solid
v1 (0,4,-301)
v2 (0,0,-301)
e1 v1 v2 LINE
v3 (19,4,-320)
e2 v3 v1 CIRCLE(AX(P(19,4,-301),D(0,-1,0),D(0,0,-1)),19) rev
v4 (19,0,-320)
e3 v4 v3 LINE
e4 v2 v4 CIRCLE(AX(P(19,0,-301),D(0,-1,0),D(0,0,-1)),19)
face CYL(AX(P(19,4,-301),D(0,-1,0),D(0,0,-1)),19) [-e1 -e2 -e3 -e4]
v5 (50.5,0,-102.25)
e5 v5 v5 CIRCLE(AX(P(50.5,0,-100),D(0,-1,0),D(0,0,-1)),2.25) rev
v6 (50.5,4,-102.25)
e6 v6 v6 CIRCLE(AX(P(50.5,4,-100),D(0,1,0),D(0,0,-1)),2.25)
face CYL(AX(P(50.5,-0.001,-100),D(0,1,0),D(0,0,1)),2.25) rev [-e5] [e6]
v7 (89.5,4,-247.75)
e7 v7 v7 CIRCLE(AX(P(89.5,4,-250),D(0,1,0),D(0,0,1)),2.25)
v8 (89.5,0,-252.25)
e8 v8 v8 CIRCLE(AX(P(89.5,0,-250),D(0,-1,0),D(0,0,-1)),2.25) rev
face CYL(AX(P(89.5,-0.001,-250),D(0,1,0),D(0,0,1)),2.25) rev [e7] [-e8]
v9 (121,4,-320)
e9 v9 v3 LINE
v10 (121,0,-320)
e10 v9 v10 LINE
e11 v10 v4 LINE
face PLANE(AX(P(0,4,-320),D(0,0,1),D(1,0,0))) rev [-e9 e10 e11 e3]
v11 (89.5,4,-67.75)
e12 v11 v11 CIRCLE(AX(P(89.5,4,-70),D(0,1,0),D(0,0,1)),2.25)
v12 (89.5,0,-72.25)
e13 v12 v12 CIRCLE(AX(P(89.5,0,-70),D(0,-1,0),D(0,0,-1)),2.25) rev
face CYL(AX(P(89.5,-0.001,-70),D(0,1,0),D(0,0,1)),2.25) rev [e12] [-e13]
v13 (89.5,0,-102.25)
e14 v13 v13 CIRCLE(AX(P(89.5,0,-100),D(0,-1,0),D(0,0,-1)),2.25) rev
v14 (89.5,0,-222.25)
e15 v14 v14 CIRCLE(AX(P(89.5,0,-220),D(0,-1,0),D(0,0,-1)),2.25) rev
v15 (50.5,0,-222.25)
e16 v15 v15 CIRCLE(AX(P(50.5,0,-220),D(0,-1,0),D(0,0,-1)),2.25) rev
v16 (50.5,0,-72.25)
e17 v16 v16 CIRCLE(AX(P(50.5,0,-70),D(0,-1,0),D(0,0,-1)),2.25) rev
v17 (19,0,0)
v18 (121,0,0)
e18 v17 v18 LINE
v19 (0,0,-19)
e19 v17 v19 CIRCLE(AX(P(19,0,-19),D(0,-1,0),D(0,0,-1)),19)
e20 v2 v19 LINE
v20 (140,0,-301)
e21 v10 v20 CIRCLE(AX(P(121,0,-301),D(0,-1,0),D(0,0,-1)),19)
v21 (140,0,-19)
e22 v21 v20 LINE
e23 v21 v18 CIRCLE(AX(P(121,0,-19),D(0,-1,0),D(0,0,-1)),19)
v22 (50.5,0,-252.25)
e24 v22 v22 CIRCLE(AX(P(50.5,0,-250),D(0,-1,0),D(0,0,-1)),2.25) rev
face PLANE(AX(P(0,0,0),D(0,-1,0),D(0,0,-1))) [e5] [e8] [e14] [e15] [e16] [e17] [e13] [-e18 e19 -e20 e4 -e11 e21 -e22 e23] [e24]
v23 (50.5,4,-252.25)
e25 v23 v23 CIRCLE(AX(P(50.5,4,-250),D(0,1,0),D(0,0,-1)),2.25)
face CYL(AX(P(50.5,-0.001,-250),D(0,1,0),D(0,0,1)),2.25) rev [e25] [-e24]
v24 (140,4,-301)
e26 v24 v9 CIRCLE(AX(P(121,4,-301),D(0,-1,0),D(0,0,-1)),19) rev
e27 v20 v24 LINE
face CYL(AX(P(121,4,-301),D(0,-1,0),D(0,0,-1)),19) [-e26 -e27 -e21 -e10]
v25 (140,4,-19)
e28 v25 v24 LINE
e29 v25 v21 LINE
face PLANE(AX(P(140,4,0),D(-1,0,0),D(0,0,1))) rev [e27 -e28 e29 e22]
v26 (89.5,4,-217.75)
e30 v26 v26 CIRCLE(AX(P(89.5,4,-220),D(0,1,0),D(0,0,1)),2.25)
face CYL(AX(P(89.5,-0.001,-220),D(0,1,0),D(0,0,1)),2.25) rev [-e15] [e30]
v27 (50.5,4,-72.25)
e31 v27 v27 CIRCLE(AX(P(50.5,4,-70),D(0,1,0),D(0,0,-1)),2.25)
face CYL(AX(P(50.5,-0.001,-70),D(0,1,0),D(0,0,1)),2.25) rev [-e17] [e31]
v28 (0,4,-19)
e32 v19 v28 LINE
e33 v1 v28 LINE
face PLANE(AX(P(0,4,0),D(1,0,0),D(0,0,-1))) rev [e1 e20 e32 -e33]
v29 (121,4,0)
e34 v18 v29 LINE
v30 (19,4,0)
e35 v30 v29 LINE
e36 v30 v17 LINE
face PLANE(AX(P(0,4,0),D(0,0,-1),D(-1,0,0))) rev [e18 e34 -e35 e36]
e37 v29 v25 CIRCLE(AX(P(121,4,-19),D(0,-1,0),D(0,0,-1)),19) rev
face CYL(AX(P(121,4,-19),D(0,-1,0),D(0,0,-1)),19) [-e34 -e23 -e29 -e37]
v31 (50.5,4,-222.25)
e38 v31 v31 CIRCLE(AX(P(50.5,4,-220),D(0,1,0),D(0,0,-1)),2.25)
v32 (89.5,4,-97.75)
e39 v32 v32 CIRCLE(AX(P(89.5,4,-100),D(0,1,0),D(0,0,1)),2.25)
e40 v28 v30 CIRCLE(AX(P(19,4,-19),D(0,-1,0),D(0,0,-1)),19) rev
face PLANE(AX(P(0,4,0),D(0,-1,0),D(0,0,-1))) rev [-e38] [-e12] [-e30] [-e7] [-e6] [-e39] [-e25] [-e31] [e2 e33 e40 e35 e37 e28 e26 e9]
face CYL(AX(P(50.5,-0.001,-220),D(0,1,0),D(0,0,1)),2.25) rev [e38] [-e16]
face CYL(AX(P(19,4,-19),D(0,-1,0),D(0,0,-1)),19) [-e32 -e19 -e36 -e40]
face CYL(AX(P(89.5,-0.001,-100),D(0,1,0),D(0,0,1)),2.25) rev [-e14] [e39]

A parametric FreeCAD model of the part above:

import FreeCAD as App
import Part
import Sketcher

V = App.Vector
Q = App.Units.Quantity


def edges_at(feature, points):
    """Names of the edges that pass closest to the given points."""
    edges = feature.Shape.Edges
    near = lambda p: min(range(len(edges)), key=lambda i: edges[i].distToShape(Part.Vertex(*p))[0])
    return sorted({f"Edge{near(p) + 1}" for p in points})

doc = App.newDocument("Part")
body = doc.addObject("PartDesign::Body", "Body")

sketch1 = body.newObject("Sketcher::SketchObject", "Sketch")
sketch1.AttachmentSupport = (doc.getObject("XZ_Plane"), [""])
sketch1.MapMode = "FlatFace"
sketch1.addGeometry([
    Part.LineSegment(V(0, -320, 0), V(0, 0, 0)),
    Part.LineSegment(V(0, 0, 0), V(140, 0, 0)),
    Part.LineSegment(V(140, 0, 0), V(140, -320, 0)),
    Part.LineSegment(V(140, -320, 0), V(0, -320, 0)),
], False)
sketch1.addConstraint([
    Sketcher.Constraint("Coincident", 0, 2, 1, 1),
    Sketcher.Constraint("Coincident", 1, 2, 2, 1),
    Sketcher.Constraint("Coincident", 2, 2, 3, 1),
    Sketcher.Constraint("Coincident", 3, 2, 0, 1),
    Sketcher.Constraint("Vertical", 0),
    Sketcher.Constraint("Horizontal", 1),
    Sketcher.Constraint("Vertical", 2),
    Sketcher.Constraint("Horizontal", 3),
    Sketcher.Constraint("Coincident", 0, 2, -1, 1),
    Sketcher.Constraint("DistanceX", 1, 1, 1, 2, Q("140 mm")),
    Sketcher.Constraint("DistanceY", 0, 1, 0, 2, Q("320 mm")),
])
pad1 = body.newObject("PartDesign::Pad", "Pad")
pad1.Profile = sketch1
pad1.Length = 4
pad1.Reversed = True

sketch2 = body.newObject("Sketcher::SketchObject", "Sketch001")
sketch2.AttachmentSupport = (doc.getObject("XZ_Plane"), [""])
sketch2.MapMode = "FlatFace"
sketch2.AttachmentOffset = App.Placement(V(0, 0, -4), App.Rotation())
sketch2.addGeometry(Part.Circle(V(89.5, -250, 0), V(0, 0, 1), 2.25), False)
sketch2.addConstraint([
    Sketcher.Constraint("Diameter", 0, Q("4.5 mm")),
    Sketcher.Constraint("DistanceY", 0, 3, -1, 1, Q("250 mm")),
    Sketcher.Constraint("DistanceX", -1, 1, 0, 3, Q("89.5 mm")),
])
pocket1 = body.newObject("PartDesign::Pocket", "Pocket")
pocket1.Profile = sketch2
pocket1.Type = "UpToFirst"
pocket1.Reversed = True

sketch3 = body.newObject("Sketcher::SketchObject", "Sketch002")
sketch3.AttachmentSupport = (doc.getObject("XZ_Plane"), [""])
sketch3.MapMode = "FlatFace"
sketch3.AttachmentOffset = App.Placement(V(0, 0, -4), App.Rotation())
sketch3.addGeometry(Part.Circle(V(89.5, -220, 0), V(0, 0, 1), 2.25), False)
sketch3.addConstraint([
    Sketcher.Constraint("Diameter", 0, Q("4.5 mm")),
    Sketcher.Constraint("DistanceY", 0, 3, -1, 1, Q("220 mm")),
    Sketcher.Constraint("DistanceX", -1, 1, 0, 3, Q("89.5 mm")),
])
pocket2 = body.newObject("PartDesign::Pocket", "Pocket001")
pocket2.Profile = sketch3
pocket2.Type = "UpToFirst"
pocket2.Reversed = True

sketch4 = body.newObject("Sketcher::SketchObject", "Sketch003")
sketch4.AttachmentSupport = (doc.getObject("XZ_Plane"), [""])
sketch4.MapMode = "FlatFace"
sketch4.AttachmentOffset = App.Placement(V(0, 0, -4), App.Rotation())
sketch4.addGeometry(Part.Circle(V(89.5, -100, 0), V(0, 0, 1), 2.25), False)
sketch4.addConstraint([
    Sketcher.Constraint("Diameter", 0, Q("4.5 mm")),
    Sketcher.Constraint("DistanceY", 0, 3, -1, 1, Q("100 mm")),
    Sketcher.Constraint("DistanceX", -1, 1, 0, 3, Q("89.5 mm")),
])
pocket3 = body.newObject("PartDesign::Pocket", "Pocket002")
pocket3.Profile = sketch4
pocket3.Type = "UpToFirst"
pocket3.Reversed = True

sketch5 = body.newObject("Sketcher::SketchObject", "Sketch004")
sketch5.AttachmentSupport = (doc.getObject("XZ_Plane"), [""])
sketch5.MapMode = "FlatFace"
sketch5.AttachmentOffset = App.Placement(V(0, 0, -4), App.Rotation())
sketch5.addGeometry(Part.Circle(V(89.5, -70, 0), V(0, 0, 1), 2.25), False)
sketch5.addConstraint([
    Sketcher.Constraint("Diameter", 0, Q("4.5 mm")),
    Sketcher.Constraint("DistanceY", 0, 3, -1, 1, Q("70 mm")),
    Sketcher.Constraint("DistanceX", -1, 1, 0, 3, Q("89.5 mm")),
])
pocket4 = body.newObject("PartDesign::Pocket", "Pocket003")
pocket4.Profile = sketch5
pocket4.Type = "UpToFirst"
pocket4.Reversed = True

sketch6 = body.newObject("Sketcher::SketchObject", "Sketch005")
sketch6.AttachmentSupport = (doc.getObject("XZ_Plane"), [""])
sketch6.MapMode = "FlatFace"
sketch6.AttachmentOffset = App.Placement(V(0, 0, -4), App.Rotation())
sketch6.addGeometry(Part.Circle(V(50.5, -70, 0), V(0, 0, 1), 2.25), False)
sketch6.addConstraint([
    Sketcher.Constraint("Diameter", 0, Q("4.5 mm")),
    Sketcher.Constraint("DistanceY", 0, 3, -1, 1, Q("70 mm")),
    Sketcher.Constraint("DistanceX", -1, 1, 0, 3, Q("50.5 mm")),
])
pocket5 = body.newObject("PartDesign::Pocket", "Pocket004")
pocket5.Profile = sketch6
pocket5.Type = "UpToFirst"
pocket5.Reversed = True

sketch7 = body.newObject("Sketcher::SketchObject", "Sketch006")
sketch7.AttachmentSupport = (doc.getObject("XZ_Plane"), [""])
sketch7.MapMode = "FlatFace"
sketch7.AttachmentOffset = App.Placement(V(0, 0, -4), App.Rotation())
sketch7.addGeometry(Part.Circle(V(50.5, -100, 0), V(0, 0, 1), 2.25), False)
sketch7.addConstraint([
    Sketcher.Constraint("Diameter", 0, Q("4.5 mm")),
    Sketcher.Constraint("DistanceY", 0, 3, -1, 1, Q("100 mm")),
    Sketcher.Constraint("DistanceX", -1, 1, 0, 3, Q("50.5 mm")),
])
pocket6 = body.newObject("PartDesign::Pocket", "Pocket005")
pocket6.Profile = sketch7
pocket6.Type = "UpToFirst"
pocket6.Reversed = True

sketch8 = body.newObject("Sketcher::SketchObject", "Sketch007")
sketch8.AttachmentSupport = (doc.getObject("XZ_Plane"), [""])
sketch8.MapMode = "FlatFace"
sketch8.AttachmentOffset = App.Placement(V(0, 0, -4), App.Rotation())
sketch8.addGeometry(Part.Circle(V(50.5, -220, 0), V(0, 0, 1), 2.25), False)
sketch8.addConstraint([
    Sketcher.Constraint("Diameter", 0, Q("4.5 mm")),
    Sketcher.Constraint("DistanceY", 0, 3, -1, 1, Q("220 mm")),
    Sketcher.Constraint("DistanceX", -1, 1, 0, 3, Q("50.5 mm")),
])
pocket7 = body.newObject("PartDesign::Pocket", "Pocket006")
pocket7.Profile = sketch8
pocket7.Type = "UpToFirst"
pocket7.Reversed = True

sketch9 = body.newObject("Sketcher::SketchObject", "Sketch008")
sketch9.AttachmentSupport = (doc.getObject("XZ_Plane"), [""])
sketch9.MapMode = "FlatFace"
sketch9.AttachmentOffset = App.Placement(V(0, 0, -4), App.Rotation())
sketch9.addGeometry(Part.Circle(V(50.5, -250, 0), V(0, 0, 1), 2.25), False)
sketch9.addConstraint([
    Sketcher.Constraint("Diameter", 0, Q("4.5 mm")),
    Sketcher.Constraint("DistanceY", 0, 3, -1, 1, Q("250 mm")),
    Sketcher.Constraint("DistanceX", -1, 1, 0, 3, Q("50.5 mm")),
])
pocket8 = body.newObject("PartDesign::Pocket", "Pocket007")
pocket8.Profile = sketch9
pocket8.Type = "UpToFirst"
pocket8.Reversed = True
doc.recompute()

fillet = body.newObject("PartDesign::Fillet", "Fillet")
fillet.Base = (pocket8, edges_at(pocket8, [
    (0, 2, -320),
    (140, 2, -320),
    (140, 2, 0),
    (0, 2, 0),
]))
fillet.Radius = 19

doc.recompute()
